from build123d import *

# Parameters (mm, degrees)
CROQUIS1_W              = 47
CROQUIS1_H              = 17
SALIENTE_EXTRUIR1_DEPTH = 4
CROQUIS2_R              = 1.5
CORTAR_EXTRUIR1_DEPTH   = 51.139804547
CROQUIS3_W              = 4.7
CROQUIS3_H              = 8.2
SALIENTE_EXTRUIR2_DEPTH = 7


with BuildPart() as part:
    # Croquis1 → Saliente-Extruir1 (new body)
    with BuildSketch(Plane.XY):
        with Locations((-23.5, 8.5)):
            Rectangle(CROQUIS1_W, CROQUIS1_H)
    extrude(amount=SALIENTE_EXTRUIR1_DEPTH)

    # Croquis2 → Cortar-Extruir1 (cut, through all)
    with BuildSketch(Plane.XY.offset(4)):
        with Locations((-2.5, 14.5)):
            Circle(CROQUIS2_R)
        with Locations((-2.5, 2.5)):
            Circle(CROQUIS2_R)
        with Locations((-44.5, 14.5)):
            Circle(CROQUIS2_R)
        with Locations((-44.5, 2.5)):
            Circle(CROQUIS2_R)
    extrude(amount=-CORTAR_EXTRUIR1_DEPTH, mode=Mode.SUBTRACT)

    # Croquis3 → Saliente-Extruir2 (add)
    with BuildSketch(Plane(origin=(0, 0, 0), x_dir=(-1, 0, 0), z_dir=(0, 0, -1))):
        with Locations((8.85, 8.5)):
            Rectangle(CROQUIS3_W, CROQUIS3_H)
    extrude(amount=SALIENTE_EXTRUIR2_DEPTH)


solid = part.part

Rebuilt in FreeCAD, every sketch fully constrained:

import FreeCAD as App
import Part
import Sketcher

V = App.Vector

doc = App.newDocument("Part")
body = doc.addObject("PartDesign::Body", "Body")

sketch1 = body.newObject("Sketcher::SketchObject", "Sketch")
sketch1.AttachmentSupport = (doc.getObject("XY_Plane"), [""])
sketch1.MapMode = "FlatFace"
sketch1.addGeometry([
    Part.LineSegment(V(-47, 17, 0), V(-47, 0, 0)),
    Part.LineSegment(V(-47, 0, 0), V(0, 0, 0)),
    Part.LineSegment(V(0, 0, 0), V(0, 17, 0)),
    Part.LineSegment(V(0, 17, 0), V(-47, 17, 0)),
], False)
sketch1.addConstraint([
    Sketcher.Constraint("Coincident", 0, 2, 1, 1),
    Sketcher.Constraint("Coincident", 1, 2, 2, 1),
    Sketcher.Constraint("Coincident", 2, 2, 3, 1),
    Sketcher.Constraint("Coincident", 3, 2, 0, 1),
    Sketcher.Constraint("Vertical", 0),
    Sketcher.Constraint("Horizontal", 1),
    Sketcher.Constraint("Vertical", 2),
    Sketcher.Constraint("Horizontal", 3),
    Sketcher.Constraint("Coincident", 1, 2, -1, 1),
    Sketcher.Constraint("DistanceX", 1, 1, 1, 2, 47.0),
    Sketcher.Constraint("DistanceY", 0, 2, 0, 1, 17.0),
])
pad1 = body.newObject("PartDesign::Pad", "Pad")
pad1.Profile = sketch1
pad1.Length = 4

sketch2 = body.newObject("Sketcher::SketchObject", "Sketch001")
sketch2.AttachmentSupport = (doc.getObject("XY_Plane"), [""])
sketch2.MapMode = "FlatFace"
sketch2.AttachmentOffset = App.Placement(V(0, 0, 4), App.Rotation())
sketch2.addGeometry([
    Part.Circle(V(-2.5, 14.5, 0), V(0, 0, 1), 1.5),
    Part.Circle(V(-2.5, 2.5, 0), V(0, 0, 1), 1.5),
    Part.Circle(V(-44.5, 14.5, 0), V(0, 0, 1), 1.5),
    Part.Circle(V(-44.5, 2.5, 0), V(0, 0, 1), 1.5),
], False)
sketch2.addConstraint([
    Sketcher.Constraint("Equal", 0, 1),
    Sketcher.Constraint("Equal", 1, 2),
    Sketcher.Constraint("Equal", 2, 3),
    Sketcher.Constraint("Horizontal", 0, 3, 2, 3),
    Sketcher.Constraint("Horizontal", 1, 3, 3, 3),
    Sketcher.Constraint("Vertical", 0, 3, 1, 3),
    Sketcher.Constraint("Vertical", 2, 3, 3, 3),
    Sketcher.Constraint("Diameter", 0, 3.0),
    Sketcher.Constraint("DistanceY", 1, 3, 0, 3, 12.0),
    Sketcher.Constraint("DistanceX", 2, 3, 0, 3, 42.0),
    Sketcher.Constraint("DistanceX", 0, 3, -1, 1, 2.5),
    Sketcher.Constraint("DistanceY", -1, 1, 0, 3, 14.5),
])
pocket1 = body.newObject("PartDesign::Pocket", "Pocket")
pocket1.Profile = sketch2
pocket1.Type = "ThroughAll"

sketch3 = body.newObject("Sketcher::SketchObject", "Sketch002")
sketch3.AttachmentSupport = (doc.getObject("XY_Plane"), [""])
sketch3.MapMode = "FlatFace"
sketch3.addGeometry([
    Part.LineSegment(V(-6.5, 12.6, 0), V(-6.5, 4.4, 0)),
    Part.LineSegment(V(-6.5, 4.4, 0), V(-11.2, 4.4, 0)),
    Part.LineSegment(V(-11.2, 4.4, 0), V(-11.2, 12.6, 0)),
    Part.LineSegment(V(-11.2, 12.6, 0), V(-6.5, 12.6, 0)),
], False)
sketch3.addConstraint([
    Sketcher.Constraint("Coincident", 0, 2, 1, 1),
    Sketcher.Constraint("Coincident", 1, 2, 2, 1),
    Sketcher.Constraint("Coincident", 2, 2, 3, 1),
    Sketcher.Constraint("Coincident", 3, 2, 0, 1),
    Sketcher.Constraint("Vertical", 0),
    Sketcher.Constraint("Horizontal", 1),
    Sketcher.Constraint("Vertical", 2),
    Sketcher.Constraint("Horizontal", 3),
    Sketcher.Constraint("DistanceX", 1, 2, 1, 1, 4.7),
    Sketcher.Constraint("DistanceY", 0, 2, 0, 1, 8.2),
    Sketcher.Constraint("DistanceX", 0, 2, -1, 1, 6.5),
    Sketcher.Constraint("DistanceY", -1, 1, 0, 2, 4.4),
])
pad2 = body.newObject("PartDesign::Pad", "Pad001")
pad2.Profile = sketch3
pad2.Length = 7
pad2.Reversed = True

doc.recompute()
